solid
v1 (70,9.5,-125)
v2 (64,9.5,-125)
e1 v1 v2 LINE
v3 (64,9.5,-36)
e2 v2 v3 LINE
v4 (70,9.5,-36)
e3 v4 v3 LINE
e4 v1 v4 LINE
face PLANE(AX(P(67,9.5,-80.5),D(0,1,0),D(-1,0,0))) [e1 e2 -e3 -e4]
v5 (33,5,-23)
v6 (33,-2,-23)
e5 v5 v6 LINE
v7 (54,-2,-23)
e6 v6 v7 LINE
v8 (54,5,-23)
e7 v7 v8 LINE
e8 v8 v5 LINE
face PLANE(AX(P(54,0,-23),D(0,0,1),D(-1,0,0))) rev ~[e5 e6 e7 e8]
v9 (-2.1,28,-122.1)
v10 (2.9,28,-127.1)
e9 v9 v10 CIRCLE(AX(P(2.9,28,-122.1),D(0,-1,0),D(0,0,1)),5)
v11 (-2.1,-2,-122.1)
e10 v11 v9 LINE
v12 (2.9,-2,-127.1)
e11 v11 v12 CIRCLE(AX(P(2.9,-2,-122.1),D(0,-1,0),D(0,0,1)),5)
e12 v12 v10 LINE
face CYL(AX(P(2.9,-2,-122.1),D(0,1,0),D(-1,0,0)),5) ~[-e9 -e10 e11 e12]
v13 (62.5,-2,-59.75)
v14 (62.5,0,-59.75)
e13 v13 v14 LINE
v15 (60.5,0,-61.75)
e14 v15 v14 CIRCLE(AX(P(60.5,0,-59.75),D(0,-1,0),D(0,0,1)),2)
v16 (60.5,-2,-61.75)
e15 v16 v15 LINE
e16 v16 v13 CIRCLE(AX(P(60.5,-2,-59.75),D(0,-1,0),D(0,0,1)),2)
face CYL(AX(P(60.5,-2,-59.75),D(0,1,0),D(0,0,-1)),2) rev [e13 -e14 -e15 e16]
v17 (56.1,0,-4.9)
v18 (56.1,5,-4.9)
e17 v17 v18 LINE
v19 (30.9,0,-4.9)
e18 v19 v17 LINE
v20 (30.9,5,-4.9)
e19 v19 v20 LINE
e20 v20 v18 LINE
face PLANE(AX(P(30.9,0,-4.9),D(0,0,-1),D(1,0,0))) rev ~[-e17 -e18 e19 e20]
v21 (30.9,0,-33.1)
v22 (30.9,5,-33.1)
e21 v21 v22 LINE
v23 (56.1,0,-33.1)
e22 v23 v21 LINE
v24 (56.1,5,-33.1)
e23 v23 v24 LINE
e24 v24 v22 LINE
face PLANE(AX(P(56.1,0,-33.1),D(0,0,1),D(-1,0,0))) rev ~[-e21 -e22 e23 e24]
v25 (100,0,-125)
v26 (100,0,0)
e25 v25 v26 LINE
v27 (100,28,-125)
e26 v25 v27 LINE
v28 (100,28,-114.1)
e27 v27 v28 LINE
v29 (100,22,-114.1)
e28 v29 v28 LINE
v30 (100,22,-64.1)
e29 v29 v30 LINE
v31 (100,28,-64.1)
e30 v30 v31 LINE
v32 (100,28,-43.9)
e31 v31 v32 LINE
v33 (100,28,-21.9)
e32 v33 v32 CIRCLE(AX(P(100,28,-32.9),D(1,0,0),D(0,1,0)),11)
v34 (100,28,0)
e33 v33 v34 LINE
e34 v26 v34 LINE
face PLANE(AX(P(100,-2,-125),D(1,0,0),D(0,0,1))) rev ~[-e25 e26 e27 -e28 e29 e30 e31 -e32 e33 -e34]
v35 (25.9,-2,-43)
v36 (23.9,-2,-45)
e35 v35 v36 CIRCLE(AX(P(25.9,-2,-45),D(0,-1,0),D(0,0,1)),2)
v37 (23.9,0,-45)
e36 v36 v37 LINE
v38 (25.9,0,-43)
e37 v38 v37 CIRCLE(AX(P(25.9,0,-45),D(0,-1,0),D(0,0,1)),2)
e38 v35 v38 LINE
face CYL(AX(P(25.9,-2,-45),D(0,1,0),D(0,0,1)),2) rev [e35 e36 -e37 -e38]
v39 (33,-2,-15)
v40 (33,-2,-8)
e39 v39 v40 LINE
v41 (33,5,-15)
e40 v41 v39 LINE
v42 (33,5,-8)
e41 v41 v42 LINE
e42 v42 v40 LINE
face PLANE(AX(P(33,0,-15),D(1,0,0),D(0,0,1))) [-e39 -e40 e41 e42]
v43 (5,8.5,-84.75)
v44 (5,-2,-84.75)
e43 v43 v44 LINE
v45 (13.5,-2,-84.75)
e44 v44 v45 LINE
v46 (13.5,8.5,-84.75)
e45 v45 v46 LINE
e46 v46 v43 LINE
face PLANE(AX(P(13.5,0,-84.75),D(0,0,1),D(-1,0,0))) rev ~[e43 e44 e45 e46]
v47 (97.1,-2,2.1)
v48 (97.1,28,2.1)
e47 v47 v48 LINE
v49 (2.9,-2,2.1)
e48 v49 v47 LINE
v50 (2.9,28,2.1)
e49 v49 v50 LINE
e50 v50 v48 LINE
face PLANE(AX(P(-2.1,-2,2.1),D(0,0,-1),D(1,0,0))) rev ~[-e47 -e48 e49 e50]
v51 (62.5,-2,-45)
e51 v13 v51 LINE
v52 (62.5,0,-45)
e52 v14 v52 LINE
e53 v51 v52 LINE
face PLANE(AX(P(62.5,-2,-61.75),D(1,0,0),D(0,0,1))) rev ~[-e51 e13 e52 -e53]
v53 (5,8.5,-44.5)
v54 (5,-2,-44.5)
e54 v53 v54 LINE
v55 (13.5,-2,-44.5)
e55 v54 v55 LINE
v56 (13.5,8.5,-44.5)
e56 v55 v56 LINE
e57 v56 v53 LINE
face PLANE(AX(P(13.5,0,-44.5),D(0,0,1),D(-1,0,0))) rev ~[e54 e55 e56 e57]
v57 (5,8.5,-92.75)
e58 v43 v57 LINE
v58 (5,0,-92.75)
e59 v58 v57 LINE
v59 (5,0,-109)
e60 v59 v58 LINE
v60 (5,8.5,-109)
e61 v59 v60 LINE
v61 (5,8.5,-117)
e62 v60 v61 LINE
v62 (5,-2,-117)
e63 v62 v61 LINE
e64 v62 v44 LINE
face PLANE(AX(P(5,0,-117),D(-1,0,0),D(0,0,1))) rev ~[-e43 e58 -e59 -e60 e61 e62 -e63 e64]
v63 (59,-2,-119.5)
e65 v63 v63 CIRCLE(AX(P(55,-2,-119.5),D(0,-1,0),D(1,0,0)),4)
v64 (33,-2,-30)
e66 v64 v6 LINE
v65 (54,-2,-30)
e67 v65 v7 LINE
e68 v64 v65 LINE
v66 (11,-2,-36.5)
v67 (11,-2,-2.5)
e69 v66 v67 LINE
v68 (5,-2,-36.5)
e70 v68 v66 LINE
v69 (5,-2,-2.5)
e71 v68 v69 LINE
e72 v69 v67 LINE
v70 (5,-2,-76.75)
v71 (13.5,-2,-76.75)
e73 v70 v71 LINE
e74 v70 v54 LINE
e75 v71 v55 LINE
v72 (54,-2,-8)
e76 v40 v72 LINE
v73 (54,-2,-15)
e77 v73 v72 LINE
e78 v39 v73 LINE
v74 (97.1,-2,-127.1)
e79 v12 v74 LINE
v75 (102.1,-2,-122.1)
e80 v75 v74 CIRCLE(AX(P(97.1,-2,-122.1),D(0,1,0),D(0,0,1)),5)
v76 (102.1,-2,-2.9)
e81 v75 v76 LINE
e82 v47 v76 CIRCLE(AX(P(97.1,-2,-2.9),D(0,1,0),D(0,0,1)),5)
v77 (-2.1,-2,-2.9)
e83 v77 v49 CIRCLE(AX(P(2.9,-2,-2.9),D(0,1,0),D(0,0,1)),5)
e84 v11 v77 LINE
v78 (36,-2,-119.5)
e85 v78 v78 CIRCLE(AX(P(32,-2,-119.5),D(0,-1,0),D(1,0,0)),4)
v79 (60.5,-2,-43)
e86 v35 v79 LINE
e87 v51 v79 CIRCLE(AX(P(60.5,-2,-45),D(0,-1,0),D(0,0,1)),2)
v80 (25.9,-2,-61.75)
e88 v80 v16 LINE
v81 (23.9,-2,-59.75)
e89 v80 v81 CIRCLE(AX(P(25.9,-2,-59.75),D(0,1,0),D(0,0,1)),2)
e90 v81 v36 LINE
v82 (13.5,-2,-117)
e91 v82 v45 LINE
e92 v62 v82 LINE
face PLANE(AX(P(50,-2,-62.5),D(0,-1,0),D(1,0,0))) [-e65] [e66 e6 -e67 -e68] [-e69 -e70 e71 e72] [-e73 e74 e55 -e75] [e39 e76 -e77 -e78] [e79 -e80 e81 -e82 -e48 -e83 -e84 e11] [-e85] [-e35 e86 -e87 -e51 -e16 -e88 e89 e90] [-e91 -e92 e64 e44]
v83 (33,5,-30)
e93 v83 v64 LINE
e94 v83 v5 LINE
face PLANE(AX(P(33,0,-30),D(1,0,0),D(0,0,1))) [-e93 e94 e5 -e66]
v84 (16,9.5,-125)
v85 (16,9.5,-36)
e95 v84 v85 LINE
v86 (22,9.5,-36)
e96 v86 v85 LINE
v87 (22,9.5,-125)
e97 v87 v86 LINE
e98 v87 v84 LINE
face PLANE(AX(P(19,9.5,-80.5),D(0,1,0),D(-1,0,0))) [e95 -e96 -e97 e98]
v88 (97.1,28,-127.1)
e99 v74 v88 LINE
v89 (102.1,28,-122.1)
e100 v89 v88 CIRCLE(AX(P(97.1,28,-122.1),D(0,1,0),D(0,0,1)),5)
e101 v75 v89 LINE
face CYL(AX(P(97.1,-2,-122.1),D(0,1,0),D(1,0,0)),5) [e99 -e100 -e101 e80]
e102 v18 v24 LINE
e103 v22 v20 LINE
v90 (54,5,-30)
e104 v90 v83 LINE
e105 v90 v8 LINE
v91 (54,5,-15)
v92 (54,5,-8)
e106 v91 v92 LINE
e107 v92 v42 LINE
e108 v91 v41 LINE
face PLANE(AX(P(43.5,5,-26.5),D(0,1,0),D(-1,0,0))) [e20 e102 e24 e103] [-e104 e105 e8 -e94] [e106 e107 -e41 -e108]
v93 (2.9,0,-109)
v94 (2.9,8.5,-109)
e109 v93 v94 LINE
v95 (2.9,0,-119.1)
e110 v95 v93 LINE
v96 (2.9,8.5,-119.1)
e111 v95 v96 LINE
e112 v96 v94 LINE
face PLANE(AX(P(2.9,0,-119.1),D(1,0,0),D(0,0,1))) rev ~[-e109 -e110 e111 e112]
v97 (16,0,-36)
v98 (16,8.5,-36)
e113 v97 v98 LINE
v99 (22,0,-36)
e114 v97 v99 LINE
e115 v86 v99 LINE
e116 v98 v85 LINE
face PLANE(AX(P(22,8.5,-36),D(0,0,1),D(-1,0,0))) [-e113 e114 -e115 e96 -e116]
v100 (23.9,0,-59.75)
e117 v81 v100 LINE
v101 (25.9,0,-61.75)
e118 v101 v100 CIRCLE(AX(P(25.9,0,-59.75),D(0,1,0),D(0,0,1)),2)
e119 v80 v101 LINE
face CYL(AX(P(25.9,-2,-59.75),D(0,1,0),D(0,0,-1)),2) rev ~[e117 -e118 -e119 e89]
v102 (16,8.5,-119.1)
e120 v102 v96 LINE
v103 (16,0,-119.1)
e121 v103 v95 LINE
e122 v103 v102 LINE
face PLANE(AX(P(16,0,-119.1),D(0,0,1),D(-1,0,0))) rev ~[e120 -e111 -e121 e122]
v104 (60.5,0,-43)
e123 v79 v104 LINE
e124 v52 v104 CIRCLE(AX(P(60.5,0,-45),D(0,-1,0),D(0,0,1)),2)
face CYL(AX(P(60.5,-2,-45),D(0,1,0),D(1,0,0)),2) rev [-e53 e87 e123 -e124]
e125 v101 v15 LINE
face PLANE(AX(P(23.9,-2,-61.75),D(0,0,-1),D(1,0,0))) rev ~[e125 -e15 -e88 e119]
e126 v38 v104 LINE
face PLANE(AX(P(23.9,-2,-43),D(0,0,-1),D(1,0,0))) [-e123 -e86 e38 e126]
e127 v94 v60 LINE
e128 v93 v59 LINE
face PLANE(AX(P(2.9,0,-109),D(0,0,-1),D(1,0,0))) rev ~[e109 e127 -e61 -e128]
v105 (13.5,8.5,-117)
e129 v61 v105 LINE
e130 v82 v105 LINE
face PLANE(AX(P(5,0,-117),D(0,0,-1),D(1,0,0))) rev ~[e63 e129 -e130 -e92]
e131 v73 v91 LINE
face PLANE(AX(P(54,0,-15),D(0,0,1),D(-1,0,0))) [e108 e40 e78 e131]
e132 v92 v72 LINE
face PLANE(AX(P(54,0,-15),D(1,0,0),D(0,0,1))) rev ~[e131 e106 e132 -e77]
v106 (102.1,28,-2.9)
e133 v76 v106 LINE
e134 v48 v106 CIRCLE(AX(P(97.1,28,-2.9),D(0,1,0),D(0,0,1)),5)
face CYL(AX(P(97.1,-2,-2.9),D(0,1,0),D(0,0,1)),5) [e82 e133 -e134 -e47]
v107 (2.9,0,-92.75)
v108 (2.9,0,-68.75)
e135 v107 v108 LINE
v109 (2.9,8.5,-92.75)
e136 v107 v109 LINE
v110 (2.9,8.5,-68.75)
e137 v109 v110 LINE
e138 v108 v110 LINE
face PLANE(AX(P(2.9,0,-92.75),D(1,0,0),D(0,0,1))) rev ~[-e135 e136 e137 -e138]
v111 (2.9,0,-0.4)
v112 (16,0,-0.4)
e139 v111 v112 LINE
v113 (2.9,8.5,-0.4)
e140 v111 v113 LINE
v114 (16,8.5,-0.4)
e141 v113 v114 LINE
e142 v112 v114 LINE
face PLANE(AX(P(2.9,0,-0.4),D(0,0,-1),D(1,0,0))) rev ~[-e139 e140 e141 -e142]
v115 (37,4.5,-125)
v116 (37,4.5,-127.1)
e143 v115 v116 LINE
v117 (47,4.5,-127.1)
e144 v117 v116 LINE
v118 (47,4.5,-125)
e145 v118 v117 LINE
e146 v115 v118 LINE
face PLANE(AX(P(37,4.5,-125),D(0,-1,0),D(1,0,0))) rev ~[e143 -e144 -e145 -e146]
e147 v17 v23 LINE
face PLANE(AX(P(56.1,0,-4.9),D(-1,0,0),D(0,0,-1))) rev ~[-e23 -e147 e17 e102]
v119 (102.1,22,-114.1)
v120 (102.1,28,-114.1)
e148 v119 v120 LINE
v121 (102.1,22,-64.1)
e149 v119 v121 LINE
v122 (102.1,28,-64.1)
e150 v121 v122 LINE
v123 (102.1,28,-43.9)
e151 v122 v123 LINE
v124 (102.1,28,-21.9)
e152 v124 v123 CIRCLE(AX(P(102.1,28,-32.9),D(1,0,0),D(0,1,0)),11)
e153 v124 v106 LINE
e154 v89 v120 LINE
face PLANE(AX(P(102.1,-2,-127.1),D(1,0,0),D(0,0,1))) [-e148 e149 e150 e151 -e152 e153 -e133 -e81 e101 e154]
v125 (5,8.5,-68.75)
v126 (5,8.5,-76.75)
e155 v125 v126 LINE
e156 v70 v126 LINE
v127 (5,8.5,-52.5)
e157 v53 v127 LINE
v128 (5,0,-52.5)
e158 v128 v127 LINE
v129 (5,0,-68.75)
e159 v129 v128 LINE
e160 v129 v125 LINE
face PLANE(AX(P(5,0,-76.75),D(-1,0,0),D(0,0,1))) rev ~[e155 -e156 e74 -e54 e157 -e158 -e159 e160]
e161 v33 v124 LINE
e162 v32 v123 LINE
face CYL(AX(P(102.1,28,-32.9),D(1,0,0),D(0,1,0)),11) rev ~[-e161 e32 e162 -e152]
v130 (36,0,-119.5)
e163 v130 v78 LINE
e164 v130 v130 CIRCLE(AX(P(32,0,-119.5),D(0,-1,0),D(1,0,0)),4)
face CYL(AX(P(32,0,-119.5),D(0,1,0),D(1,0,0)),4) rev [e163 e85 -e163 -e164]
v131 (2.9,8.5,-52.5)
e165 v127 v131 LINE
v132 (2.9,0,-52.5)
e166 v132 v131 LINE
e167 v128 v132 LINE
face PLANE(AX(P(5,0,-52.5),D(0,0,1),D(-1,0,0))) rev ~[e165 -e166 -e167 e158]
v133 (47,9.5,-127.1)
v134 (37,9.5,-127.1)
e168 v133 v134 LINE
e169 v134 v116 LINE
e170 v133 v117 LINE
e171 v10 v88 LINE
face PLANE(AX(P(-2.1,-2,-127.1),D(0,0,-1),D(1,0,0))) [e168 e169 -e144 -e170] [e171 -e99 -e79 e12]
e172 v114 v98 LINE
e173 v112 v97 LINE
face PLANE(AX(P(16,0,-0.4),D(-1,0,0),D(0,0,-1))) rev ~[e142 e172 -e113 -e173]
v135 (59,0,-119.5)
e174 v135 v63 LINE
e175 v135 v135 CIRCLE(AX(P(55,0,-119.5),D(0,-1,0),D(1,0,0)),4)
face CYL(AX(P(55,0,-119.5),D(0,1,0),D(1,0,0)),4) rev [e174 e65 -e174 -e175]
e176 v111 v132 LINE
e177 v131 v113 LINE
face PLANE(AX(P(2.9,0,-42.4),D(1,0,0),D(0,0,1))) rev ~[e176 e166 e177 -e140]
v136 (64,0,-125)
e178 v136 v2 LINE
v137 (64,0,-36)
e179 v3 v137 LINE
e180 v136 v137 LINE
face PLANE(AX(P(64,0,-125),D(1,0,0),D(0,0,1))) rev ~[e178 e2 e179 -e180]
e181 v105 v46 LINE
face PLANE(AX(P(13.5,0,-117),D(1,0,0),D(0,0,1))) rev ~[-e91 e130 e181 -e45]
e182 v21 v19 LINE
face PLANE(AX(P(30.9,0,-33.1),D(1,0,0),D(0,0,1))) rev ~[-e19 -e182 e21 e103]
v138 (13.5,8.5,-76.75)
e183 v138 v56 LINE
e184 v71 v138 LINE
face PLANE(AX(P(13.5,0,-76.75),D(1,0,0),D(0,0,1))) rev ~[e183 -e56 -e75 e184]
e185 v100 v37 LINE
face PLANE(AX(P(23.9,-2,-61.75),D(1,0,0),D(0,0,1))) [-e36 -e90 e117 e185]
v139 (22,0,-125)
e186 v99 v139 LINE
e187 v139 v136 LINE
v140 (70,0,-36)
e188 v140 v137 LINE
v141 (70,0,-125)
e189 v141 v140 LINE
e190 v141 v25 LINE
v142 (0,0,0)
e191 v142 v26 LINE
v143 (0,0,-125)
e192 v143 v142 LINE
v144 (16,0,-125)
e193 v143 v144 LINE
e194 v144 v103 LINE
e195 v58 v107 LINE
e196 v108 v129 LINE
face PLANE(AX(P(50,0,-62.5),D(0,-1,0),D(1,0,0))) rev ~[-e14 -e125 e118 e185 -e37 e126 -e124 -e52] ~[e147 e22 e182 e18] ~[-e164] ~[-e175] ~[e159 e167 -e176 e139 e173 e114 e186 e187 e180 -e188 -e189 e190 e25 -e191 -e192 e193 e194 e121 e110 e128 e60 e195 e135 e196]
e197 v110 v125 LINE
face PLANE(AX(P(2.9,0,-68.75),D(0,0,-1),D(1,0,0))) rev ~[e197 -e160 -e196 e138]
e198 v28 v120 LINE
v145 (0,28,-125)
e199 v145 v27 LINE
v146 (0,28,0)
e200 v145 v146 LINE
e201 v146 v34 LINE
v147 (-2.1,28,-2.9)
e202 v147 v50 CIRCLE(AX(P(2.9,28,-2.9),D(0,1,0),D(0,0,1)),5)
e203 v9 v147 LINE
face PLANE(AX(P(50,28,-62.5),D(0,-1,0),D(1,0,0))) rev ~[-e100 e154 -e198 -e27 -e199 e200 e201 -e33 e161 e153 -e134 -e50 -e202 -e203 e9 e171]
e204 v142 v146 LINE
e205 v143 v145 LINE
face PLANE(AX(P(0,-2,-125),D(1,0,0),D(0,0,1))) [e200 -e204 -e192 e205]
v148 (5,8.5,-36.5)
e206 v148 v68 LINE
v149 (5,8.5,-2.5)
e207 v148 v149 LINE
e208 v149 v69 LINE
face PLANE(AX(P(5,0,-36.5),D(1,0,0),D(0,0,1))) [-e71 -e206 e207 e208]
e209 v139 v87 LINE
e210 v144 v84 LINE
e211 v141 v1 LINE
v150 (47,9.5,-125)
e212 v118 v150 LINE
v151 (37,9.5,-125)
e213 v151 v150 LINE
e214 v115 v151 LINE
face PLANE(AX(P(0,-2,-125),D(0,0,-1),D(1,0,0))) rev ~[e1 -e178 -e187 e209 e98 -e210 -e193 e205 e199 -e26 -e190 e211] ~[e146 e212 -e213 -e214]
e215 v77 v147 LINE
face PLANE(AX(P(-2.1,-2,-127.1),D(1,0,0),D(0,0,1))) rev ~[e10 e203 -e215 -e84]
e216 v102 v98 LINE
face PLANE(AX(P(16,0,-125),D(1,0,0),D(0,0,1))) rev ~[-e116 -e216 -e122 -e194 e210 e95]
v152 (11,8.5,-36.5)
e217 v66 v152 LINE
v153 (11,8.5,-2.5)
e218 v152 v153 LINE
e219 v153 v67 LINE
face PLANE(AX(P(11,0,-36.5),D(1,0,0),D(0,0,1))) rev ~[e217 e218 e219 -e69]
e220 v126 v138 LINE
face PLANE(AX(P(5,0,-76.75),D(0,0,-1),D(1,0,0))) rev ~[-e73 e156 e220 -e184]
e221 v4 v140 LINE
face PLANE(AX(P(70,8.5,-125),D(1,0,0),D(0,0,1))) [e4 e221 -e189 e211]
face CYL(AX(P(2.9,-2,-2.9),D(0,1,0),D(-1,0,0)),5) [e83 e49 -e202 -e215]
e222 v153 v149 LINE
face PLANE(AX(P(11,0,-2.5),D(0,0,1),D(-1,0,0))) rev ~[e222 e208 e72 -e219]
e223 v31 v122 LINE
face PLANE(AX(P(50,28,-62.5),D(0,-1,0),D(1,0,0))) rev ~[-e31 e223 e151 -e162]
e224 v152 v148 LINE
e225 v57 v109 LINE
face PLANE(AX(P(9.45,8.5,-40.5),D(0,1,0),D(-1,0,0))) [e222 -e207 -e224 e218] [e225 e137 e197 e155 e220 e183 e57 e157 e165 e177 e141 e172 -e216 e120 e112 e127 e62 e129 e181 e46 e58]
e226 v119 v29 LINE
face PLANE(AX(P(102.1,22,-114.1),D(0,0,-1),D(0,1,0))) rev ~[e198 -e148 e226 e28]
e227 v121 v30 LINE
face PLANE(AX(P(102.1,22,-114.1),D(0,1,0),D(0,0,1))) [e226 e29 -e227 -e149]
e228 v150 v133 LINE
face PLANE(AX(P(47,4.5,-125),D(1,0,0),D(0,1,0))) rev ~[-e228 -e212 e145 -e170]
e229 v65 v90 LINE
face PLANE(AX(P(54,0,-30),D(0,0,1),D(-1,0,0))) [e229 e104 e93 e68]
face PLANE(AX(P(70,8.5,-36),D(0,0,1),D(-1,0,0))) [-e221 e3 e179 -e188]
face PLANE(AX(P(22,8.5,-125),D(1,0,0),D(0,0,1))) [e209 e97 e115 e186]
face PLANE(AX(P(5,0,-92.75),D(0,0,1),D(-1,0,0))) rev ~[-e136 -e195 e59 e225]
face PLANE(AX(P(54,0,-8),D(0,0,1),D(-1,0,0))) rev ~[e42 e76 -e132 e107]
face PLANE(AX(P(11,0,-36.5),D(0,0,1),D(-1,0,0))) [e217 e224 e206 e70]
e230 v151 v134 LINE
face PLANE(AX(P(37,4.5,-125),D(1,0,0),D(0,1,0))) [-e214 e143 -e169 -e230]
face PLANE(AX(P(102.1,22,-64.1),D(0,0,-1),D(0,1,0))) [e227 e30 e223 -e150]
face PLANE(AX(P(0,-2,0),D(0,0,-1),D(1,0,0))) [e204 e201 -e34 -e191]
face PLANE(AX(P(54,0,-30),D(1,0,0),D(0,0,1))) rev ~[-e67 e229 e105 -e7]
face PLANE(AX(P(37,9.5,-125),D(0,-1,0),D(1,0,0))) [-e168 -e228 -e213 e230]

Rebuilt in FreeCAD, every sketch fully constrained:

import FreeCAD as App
import Part
import Sketcher
from FreeCAD import Vector


def edges_at(feature, points):
    """Names of the edges that pass closest to the given points."""
    edges = feature.Shape.Edges
    near = lambda p: min(range(len(edges)), key=lambda i: edges[i].distToShape(Part.Vertex(*p))[0])
    return sorted({f"Edge{near(p) + 1}" for p in points})


def add_polygon(sketch, points):
    """Adds a closed chain of lines whose ends are joined by coincident constraints."""
    first, n = sketch.GeometryCount, len(points)
    for a, b in zip(points, points[1:] + points[:1]):
        sketch.addGeometry(Part.LineSegment(App.Vector(*a, 0), App.Vector(*b, 0)), False)
    for i in range(n):
        sketch.addConstraint(Sketcher.Constraint("Coincident", first + i, 2, first + (i + 1) % n, 1))

doc = App.newDocument("Part")
params = doc.addObject("Spreadsheet::Sheet", "Params")
for row, (alias, value) in enumerate([
    ("sketch1_diameter", "8 mm"),
    ("sketch1_diameter2", "4 mm"),
    ("sketch1_diameter3", "5.5 mm"),
    ("sketch1_width", "100 mm"),
    ("sketch1_width2", "6 mm"),
    ("pad1_length", "2 mm"),
    ("sketch2_width", "6 mm"),
    ("sketch2_height", "89 mm"),
    ("pad2_length", "8.5 mm"),
    ("sketch3_height", "8 mm"),
    ("sketch3_height2", "24 mm"),
    ("sketch3_width", "13.1 mm"),
    ("sketch3_width2", "2.1 mm"),
    ("sketch3_width3", "8.5 mm"),
    ("pad3_length", "8.5 mm"),
    ("sketch4_width", "6 mm"),
    ("sketch4_height", "42 mm"),
    ("sketch4_height2", "34 mm"),
    ("sketch4_width2", "13.1 mm"),
    ("pad4_length", "8.5 mm"),
    ("sketch5_width", "21 mm"),
    ("sketch5_height", "7 mm"),
    ("sketch5_width2", "25.2 mm"),
    ("sketch5_height2", "28.2 mm"),
    ("pad5_length", "5 mm"),
    ("sketch6_width", "100 mm"),
    ("sketch6_height", "125 mm"),
    ("sketch6_width2", "104.2 mm"),
    ("sketch6_height2", "129.2 mm"),
    ("pad6_length", "30 mm"),
    ("sketch7_diameter", "22 mm"),
    ("sketch7_width", "12 mm"),
    ("sketch7_height", "50 mm"),
    ("pocket1_length", "5 mm"),
    ("sketch8_diameter", "7.5 mm"),
    ("pocket2_length", "1 mm"),
    ("sketch9_width", "6 mm"),
    ("sketch9_height", "89 mm"),
    ("pad7_length", "1 mm"),
    ("sketch10_width", "6 mm"),
    ("sketch10_height", "89 mm"),
    ("pad8_length", "1 mm"),
    ("sketch11_width", "10 mm"),
    ("sketch11_height", "5 mm"),
    ("pocket3_length", "5 mm"),
    ("fillet_radius", "5 mm"),
    ("sketch12_diameter", "4 mm"),
    ("sketch12_diameter2", "5.5 mm"),
    ("sketch12_width", "38.6 mm"),
    ("sketch12_height", "18.75 mm"),
    ("pocket4_length", "25 mm"),
    ("fillet2_radius", "2 mm"),
], start=1):
    params.set(f"A{row}", alias)
    params.set(f"B{row}", "=" + value)
    params.setAlias(f"B{row}", alias)

body = doc.addObject("PartDesign::Body", "Body")

# Sketch on XZ plane
sketch1 = doc.addObject("Sketcher::SketchObject", "Sketch")
body.addObject(sketch1)
sketch1.AttachmentSupport = (doc.XZ_Plane, [""])
sketch1.MapMode = "FlatFace"
add_polygon(sketch1, [(0, 0), (0, -125), (100, -125), (100, 0)])  # lines 0-3
add_polygon(sketch1, [(13.5, -117), (5, -117), (5, -84.8), (13.5, -84.8)])  # lines 4-7
sketch1.addGeometry(Part.Circle(Vector(32, -119.5, 0), Vector(0, 0, 1), 4), False)  # 8
sketch1.addGeometry(Part.Circle(Vector(55, -119.5, 0), Vector(0, 0, 1), 4), False)  # 9
add_polygon(sketch1, [(13.5, -76.8), (5, -76.8), (5, -44.5), (13.5, -44.5)])  # lines 10-13
sketch1.addGeometry(Part.Circle(Vector(27.5, -47, 0), Vector(0, 0, 1), 2), False)  # 14
add_polygon(sketch1, [(11, -36.5), (5, -36.5), (5, -2.5), (11, -2.5)])  # lines 15-18
sketch1.addGeometry(Part.Circle(Vector(34, -56, 0), Vector(0, 0, 1), 2.8), False)  # 19
sketch1.addGeometry(Part.Circle(Vector(52, -56, 0), Vector(0, 0, 1), 2.8), False)  # 20
sketch1.addGeometry(Part.Circle(Vector(58.5, -47, 0), Vector(0, 0, 1), 2), False)  # 21
add_polygon(sketch1, [(54, -30), (33, -30), (33, -23), (54, -23)])  # lines 22-25
add_polygon(sketch1, [(54, -15), (33, -15), (33, -8), (54, -8)])  # lines 26-29
sketch1.addConstraint([
    Sketcher.Constraint("Vertical", 0),
    Sketcher.Constraint("Horizontal", 1),
    Sketcher.Constraint("Vertical", 2),
    Sketcher.Constraint("Horizontal", 3),
    Sketcher.Constraint("Horizontal", 4),
    Sketcher.Constraint("Vertical", 5),
    Sketcher.Constraint("Horizontal", 6),
    Sketcher.Constraint("Vertical", 7),
    Sketcher.Constraint("Horizontal", 10),
    Sketcher.Constraint("Vertical", 11),
    Sketcher.Constraint("Horizontal", 12),
    Sketcher.Constraint("Vertical", 13),
    Sketcher.Constraint("Horizontal", 15),
    Sketcher.Constraint("Vertical", 16),
    Sketcher.Constraint("Horizontal", 17),
    Sketcher.Constraint("Vertical", 18),
    Sketcher.Constraint("Horizontal", 22),
    Sketcher.Constraint("Vertical", 23),
    Sketcher.Constraint("Horizontal", 24),
    Sketcher.Constraint("Vertical", 25),
    Sketcher.Constraint("Horizontal", 26),
    Sketcher.Constraint("Vertical", 27),
    Sketcher.Constraint("Horizontal", 28),
    Sketcher.Constraint("Vertical", 29),
    Sketcher.Constraint("Coincident", 3, 2, -1, 1),
    Sketcher.Constraint("Equal", 8, 9),
    Sketcher.Constraint("Equal", 19, 20),
    Sketcher.Constraint("Equal", 14, 21),
    Sketcher.Constraint("Horizontal", 8, 3, 9, 3),
    Sketcher.Constraint("Horizontal", 19, 3, 20, 3),
    Sketcher.Constraint("Horizontal", 14, 3, 21, 3),
    Sketcher.Constraint("Vertical", 5, 2, 10, 2),
    Sketcher.Constraint("Vertical", 7, 2, 12, 2),
    Sketcher.Constraint("Vertical", 11, 2, 15, 2),
    Sketcher.Constraint("Vertical", 23, 2, 26, 2),
    Sketcher.Constraint("Vertical", 25, 2, 28, 2),
    Sketcher.Constraint("Equal", 7, 11),
    Sketcher.Constraint("Equal", 25, 27),
    Sketcher.Constraint("Diameter", 8, 8.0),
    Sketcher.Constraint("Diameter", 14, 4.0),
    Sketcher.Constraint("Diameter", 19, 5.5),
    Sketcher.Constraint("DistanceX", 1, 1, 1, 2, 100.0),
    Sketcher.Constraint("DistanceX", 15, 2, 15, 1, 6.0),
    Sketcher.Constraint("DistanceX", 22, 2, 22, 1, 21.0),
    Sketcher.Constraint("DistanceY", 0, 2, 0, 1, 125.0),
    Sketcher.Constraint("DistanceY", 16, 1, 16, 2, 34.0),
    Sketcher.Constraint("DistanceY", 23, 1, 23, 2, 7.0),
    Sketcher.Constraint("DistanceX", 4, 2, 4, 1, 8.5),
    Sketcher.Constraint("DistanceX", -1, 1, 8, 3, 32.0),
    Sketcher.Constraint("DistanceX", -1, 1, 9, 3, 55.0),
    Sketcher.Constraint("DistanceY", 14, 3, -1, 1, 47.0),
    Sketcher.Constraint("DistanceX", -1, 1, 19, 3, 34.0),
    Sketcher.Constraint("DistanceY", 19, 3, -1, 1, 56.0),
    Sketcher.Constraint("DistanceX", -1, 1, 20, 3, 52.0),
    Sketcher.Constraint("DistanceX", -1, 1, 4, 2, 5.0),
    Sketcher.Constraint("DistanceY", 4, 2, -1, 1, 117.0),
    Sketcher.Constraint("DistanceX", -1, 1, 22, 2, 33.0),
    Sketcher.Constraint("DistanceY", 22, 2, -1, 1, 30.0),
    Sketcher.Constraint("DistanceY", 26, 2, -1, 1, 15.0),
    Sketcher.Constraint("DistanceX", 14, 3, 21, 3, 31.0),
    Sketcher.Constraint("DistanceX", 6, 2, 14, 3, 14.0),
    Sketcher.Constraint("DistanceY", 5, 2, 10, 2, 8.0),
    Sketcher.Constraint("DistanceY", 11, 2, 15, 2, 8.0),
    Sketcher.Constraint("DistanceY", 5, 1, 5, 2, 32.25),
    Sketcher.Constraint("DistanceY", 8, 3, -1, 1, 119.5),
])
sketch1.setExpression("Constraints[62]", "Params.sketch1_diameter")
sketch1.setExpression("Constraints[63]", "Params.sketch1_diameter2")
sketch1.setExpression("Constraints[64]", "Params.sketch1_diameter3")
sketch1.setExpression("Constraints[65]", "Params.sketch1_width")
sketch1.setExpression("Constraints[66]", "Params.sketch1_width2")
pad1 = doc.addObject("PartDesign::Pad", "Pad")
body.addObject(pad1)
pad1.Profile = sketch1
pad1.setExpression("Length", "Params.pad1_length")

# Sketch on XZ plane
sketch2 = doc.addObject("Sketcher::SketchObject", "Sketch001")
body.addObject(sketch2)
sketch2.AttachmentSupport = (doc.XZ_Plane, [""])
sketch2.MapMode = "FlatFace"
add_polygon(sketch2, [(22, -125), (16, -125), (16, -36), (22, -36)])  # lines 0-3
add_polygon(sketch2, [(70, -36), (70, -125), (64, -125), (64, -36)])  # lines 4-7
sketch2.addConstraint([
    Sketcher.Constraint("Horizontal", 0),
    Sketcher.Constraint("Vertical", 1),
    Sketcher.Constraint("Horizontal", 2),
    Sketcher.Constraint("Vertical", 3),
    Sketcher.Constraint("Vertical", 4),
    Sketcher.Constraint("Horizontal", 5),
    Sketcher.Constraint("Vertical", 6),
    Sketcher.Constraint("Horizontal", 7),
    Sketcher.Constraint("Horizontal", 3, 2, 4, 2),
    Sketcher.Constraint("Horizontal", 2, 2, 6, 2),
    Sketcher.Constraint("Equal", 2, 5),
    Sketcher.Constraint("DistanceX", 0, 2, 0, 1, 6.0),
    Sketcher.Constraint("DistanceY", 1, 1, 1, 2, 89.0),
    Sketcher.Constraint("DistanceX", -1, 1, 0, 2, 16.0),
    Sketcher.Constraint("DistanceY", 0, 2, -1, 1, 125.0),
    Sketcher.Constraint("DistanceX", -1, 1, 4, 2, 70.0),
])
sketch2.setExpression("Constraints[19]", "Params.sketch2_width")
sketch2.setExpression("Constraints[20]", "Params.sketch2_height")
pad2 = doc.addObject("PartDesign::Pad", "Pad001")
body.addObject(pad2)
pad2.Profile = sketch2
pad2.setExpression("Length", "Params.pad2_length")
pad2.Reversed = True

# Sketch on XZ plane
sketch3 = doc.addObject("Sketcher::SketchObject", "Sketch002")
body.addObject(sketch3)
sketch3.AttachmentSupport = (doc.XZ_Plane, [""])
sketch3.MapMode = "FlatFace"
add_polygon(sketch3, [(16, -119.1), (2.9, -119.1), (2.9, -109), (5, -109), (5, -117), (13.5, -117), (13.5, -84.8), (5, -84.8), (5, -92.8), (2.9, -92.8), (2.9, -68.8), (5, -68.8), (5, -76.8), (13.5, -76.8), (13.5, -44.5), (5, -44.5), (5, -52.5), (2.9, -52.5), (2.9, -42.4), (16, -42.4)])  # lines 0-19
sketch3.addConstraint([
    Sketcher.Constraint("Horizontal", 0),
    Sketcher.Constraint("Vertical", 1),
    Sketcher.Constraint("Horizontal", 2),
    Sketcher.Constraint("Vertical", 3),
    Sketcher.Constraint("Horizontal", 4),
    Sketcher.Constraint("Vertical", 5),
    Sketcher.Constraint("Horizontal", 6),
    Sketcher.Constraint("Vertical", 7),
    Sketcher.Constraint("Horizontal", 8),
    Sketcher.Constraint("Vertical", 9),
    Sketcher.Constraint("Horizontal", 10),
    Sketcher.Constraint("Vertical", 11),
    Sketcher.Constraint("Horizontal", 12),
    Sketcher.Constraint("Vertical", 13),
    Sketcher.Constraint("Horizontal", 14),
    Sketcher.Constraint("Vertical", 15),
    Sketcher.Constraint("Horizontal", 16),
    Sketcher.Constraint("Vertical", 17),
    Sketcher.Constraint("Horizontal", 18),
    Sketcher.Constraint("Vertical", 19),
    Sketcher.Constraint("Vertical", 3, 2, 6, 2),
    Sketcher.Constraint("Vertical", 1, 2, 8, 2),
    Sketcher.Constraint("Vertical", 7, 2, 10, 2),
    Sketcher.Constraint("Vertical", 5, 2, 12, 2),
    Sketcher.Constraint("Vertical", 11, 2, 14, 2),
    Sketcher.Constraint("Vertical", 9, 2, 16, 2),
    Sketcher.Constraint("Equal", 3, 7),
    Sketcher.Constraint("Equal", 7, 11),
    Sketcher.Constraint("Equal", 5, 13),
    Sketcher.Constraint("Equal", 11, 15),
    Sketcher.Constraint("Equal", 1, 17),
    Sketcher.Constraint("DistanceY", 3, 2, 3, 1, 8.0),
    Sketcher.Constraint("DistanceY", 9, 1, 9, 2, 24.0),
    Sketcher.Constraint("DistanceX", 0, 2, 0, 1, 13.1),
    Sketcher.Constraint("DistanceX", 2, 1, 2, 2, 2.1),
    Sketcher.Constraint("DistanceX", 4, 1, 4, 2, 8.5),
    Sketcher.Constraint("DistanceY", 1, 1, 1, 2, 10.1),
    Sketcher.Constraint("DistanceY", 19, 2, 19, 1, 76.7),
    Sketcher.Constraint("DistanceY", 1, 2, -1, 1, 109.0),
    Sketcher.Constraint("DistanceX", -1, 1, 2, 2, 5.0),
])
sketch3.setExpression("Constraints[51]", "Params.sketch3_height")
sketch3.setExpression("Constraints[52]", "Params.sketch3_height2")
sketch3.setExpression("Constraints[53]", "Params.sketch3_width")
sketch3.setExpression("Constraints[54]", "Params.sketch3_width2")
sketch3.setExpression("Constraints[55]", "Params.sketch3_width3")
pad3 = doc.addObject("PartDesign::Pad", "Pad002")
body.addObject(pad3)
pad3.Profile = sketch3
pad3.setExpression("Length", "Params.pad3_length")
pad3.Reversed = True

# Sketch on XZ plane
sketch4 = doc.addObject("Sketcher::SketchObject", "Sketch003")
body.addObject(sketch4)
sketch4.AttachmentSupport = (doc.XZ_Plane, [""])
sketch4.MapMode = "FlatFace"
add_polygon(sketch4, [(16, -42), (3, -42), (3, 0), (16, 0)])  # lines 0-3
add_polygon(sketch4, [(5, -36), (11, -36), (11, -2), (5, -2)])  # lines 4-7
sketch4.addConstraint([
    Sketcher.Constraint("Horizontal", 0),
    Sketcher.Constraint("Vertical", 1),
    Sketcher.Constraint("Horizontal", 2),
    Sketcher.Constraint("Vertical", 3),
    Sketcher.Constraint("Horizontal", 4),
    Sketcher.Constraint("Vertical", 5),
    Sketcher.Constraint("Horizontal", 6),
    Sketcher.Constraint("Vertical", 7),
    Sketcher.Constraint("DistanceX", 4, 1, 4, 2, 6.0),
    Sketcher.Constraint("DistanceY", 1, 1, 1, 2, 42.0),
    Sketcher.Constraint("DistanceY", 5, 1, 5, 2, 34.0),
    Sketcher.Constraint("DistanceX", 0, 2, 0, 1, 13.1),
    Sketcher.Constraint("DistanceX", -1, 1, 2, 2, 16.0),
    Sketcher.Constraint("DistanceX", -1, 1, 4, 2, 11.0),
    Sketcher.Constraint("DistanceY", 0, 2, -1, 1, 42.4),
    Sketcher.Constraint("DistanceY", 4, 2, -1, 1, 36.5),
])
sketch4.setExpression("Constraints[16]", "Params.sketch4_width")
sketch4.setExpression("Constraints[17]", "Params.sketch4_height")
sketch4.setExpression("Constraints[18]", "Params.sketch4_height2")
sketch4.setExpression("Constraints[19]", "Params.sketch4_width2")
pad4 = doc.addObject("PartDesign::Pad", "Pad003")
body.addObject(pad4)
pad4.Profile = sketch4
pad4.setExpression("Length", "Params.pad4_length")
pad4.Reversed = True

# Sketch on XZ plane
sketch5 = doc.addObject("Sketcher::SketchObject", "Sketch004")
body.addObject(sketch5)
sketch5.AttachmentSupport = (doc.XZ_Plane, [""])
sketch5.MapMode = "FlatFace"
add_polygon(sketch5, [(56, -33), (31, -33), (31, -5), (56, -5)])  # lines 0-3
add_polygon(sketch5, [(33, -30), (54, -30), (54, -23), (33, -23)])  # lines 4-7
add_polygon(sketch5, [(33, -15), (54, -15), (54, -8), (33, -8)])  # lines 8-11
sketch5.addConstraint([
    Sketcher.Constraint("Horizontal", 0),
    Sketcher.Constraint("Vertical", 1),
    Sketcher.Constraint("Horizontal", 2),
    Sketcher.Constraint("Vertical", 3),
    Sketcher.Constraint("Horizontal", 4),
    Sketcher.Constraint("Vertical", 5),
    Sketcher.Constraint("Horizontal", 6),
    Sketcher.Constraint("Vertical", 7),
    Sketcher.Constraint("Horizontal", 8),
    Sketcher.Constraint("Vertical", 9),
    Sketcher.Constraint("Horizontal", 10),
    Sketcher.Constraint("Vertical", 11),
    Sketcher.Constraint("Vertical", 5, 2, 8, 2),
    Sketcher.Constraint("Vertical", 7, 2, 10, 2),
    Sketcher.Constraint("Equal", 7, 9),
    Sketcher.Constraint("DistanceX", 4, 1, 4, 2, 21.0),
    Sketcher.Constraint("DistanceY", 5, 1, 5, 2, 7.0),
    Sketcher.Constraint("DistanceX", 0, 2, 0, 1, 25.2),
    Sketcher.Constraint("DistanceY", 1, 1, 1, 2, 28.2),
    Sketcher.Constraint("DistanceX", -1, 1, 4, 2, 54.0),
    Sketcher.Constraint("DistanceY", 4, 2, -1, 1, 30.0),
    Sketcher.Constraint("DistanceY", 8, 2, -1, 1, 15.0),
    Sketcher.Constraint("DistanceX", -1, 1, 0, 2, 30.9),
    Sketcher.Constraint("DistanceY", 0, 2, -1, 1, 33.1),
])
sketch5.setExpression("Constraints[27]", "Params.sketch5_width")
sketch5.setExpression("Constraints[28]", "Params.sketch5_height")
sketch5.setExpression("Constraints[29]", "Params.sketch5_width2")
sketch5.setExpression("Constraints[30]", "Params.sketch5_height2")
pad5 = doc.addObject("PartDesign::Pad", "Pad004")
body.addObject(pad5)
pad5.Profile = sketch5
pad5.setExpression("Length", "Params.pad5_length")
pad5.Reversed = True

# Sketch on XZ plane
sketch6 = doc.addObject("Sketcher::SketchObject", "Sketch005")
body.addObject(sketch6)
sketch6.AttachmentSupport = (doc.XZ_Plane, [""])
sketch6.MapMode = "FlatFace"
sketch6.AttachmentOffset = App.Placement(Vector(0, 0, 2), App.Rotation())
add_polygon(sketch6, [(-2, 2), (-2, -127), (102, -127), (102, 2)])  # lines 0-3
add_polygon(sketch6, [(100, -125), (0, -125), (0, 0), (100, 0)])  # lines 4-7
sketch6.addConstraint([
    Sketcher.Constraint("Vertical", 0),
    Sketcher.Constraint("Horizontal", 1),
    Sketcher.Constraint("Vertical", 2),
    Sketcher.Constraint("Horizontal", 3),
    Sketcher.Constraint("Horizontal", 4),
    Sketcher.Constraint("Vertical", 5),
    Sketcher.Constraint("Horizontal", 6),
    Sketcher.Constraint("Vertical", 7),
    Sketcher.Constraint("Coincident", 5, 2, -1, 1),
    Sketcher.Constraint("DistanceX", 4, 2, 4, 1, 100.0),
    Sketcher.Constraint("DistanceY", 5, 1, 5, 2, 125.0),
    Sketcher.Constraint("DistanceX", 1, 1, 1, 2, 104.2),
    Sketcher.Constraint("DistanceY", 0, 2, 0, 1, 129.2),
    Sketcher.Constraint("DistanceX", 0, 2, -1, 1, 2.1),
    Sketcher.Constraint("DistanceY", 0, 2, -1, 1, 127.1),
])
sketch6.setExpression("Constraints[17]", "Params.sketch6_width")
sketch6.setExpression("Constraints[18]", "Params.sketch6_height")
sketch6.setExpression("Constraints[19]", "Params.sketch6_width2")
sketch6.setExpression("Constraints[20]", "Params.sketch6_height2")
pad6 = doc.addObject("PartDesign::Pad", "Pad005")
body.addObject(pad6)
pad6.Profile = sketch6
pad6.setExpression("Length", "Params.pad6_length")
pad6.Reversed = True

# Sketch on YZ plane
sketch7 = doc.addObject("Sketcher::SketchObject", "Sketch006")
body.addObject(sketch7)
sketch7.AttachmentSupport = (doc.YZ_Plane, [""])
sketch7.MapMode = "FlatFace"
sketch7.AttachmentOffset = App.Placement(Vector(0, 0, 102.1), App.Rotation())
sketch7.addGeometry(Part.Circle(Vector(28, -33, 0), Vector(0, 0, 1), 11), False)  # 0
add_polygon(sketch7, [(22, -64), (22, -114), (34, -114), (34, -64)])  # lines 1-4
sketch7.addConstraint([
    Sketcher.Constraint("Vertical", 1),
    Sketcher.Constraint("Horizontal", 2),
    Sketcher.Constraint("Vertical", 3),
    Sketcher.Constraint("Horizontal", 4),
    Sketcher.Constraint("Diameter", 0, 22.0),
    Sketcher.Constraint("DistanceX", 2, 1, 2, 2, 12.0),
    Sketcher.Constraint("DistanceY", 1, 2, 1, 1, 50.0),
    Sketcher.Constraint("DistanceX", -1, 1, 0, 3, 28.0),
    Sketcher.Constraint("DistanceX", -1, 1, 1, 2, 22.0),
    Sketcher.Constraint("DistanceY", 0, 3, -1, 1, 32.9),
    Sketcher.Constraint("DistanceY", 1, 2, -1, 1, 114.1),
])
sketch7.setExpression("Constraints[8]", "Params.sketch7_diameter")
sketch7.setExpression("Constraints[9]", "Params.sketch7_width")
sketch7.setExpression("Constraints[10]", "Params.sketch7_height")
pocket1 = doc.addObject("PartDesign::Pocket", "Pocket")
body.addObject(pocket1)
pocket1.Profile = sketch7
pocket1.setExpression("Length", "Params.pocket1_length")

# Sketch on XZ plane
sketch8 = doc.addObject("Sketcher::SketchObject", "Sketch007")
body.addObject(sketch8)
sketch8.AttachmentSupport = (doc.XZ_Plane, [""])
sketch8.MapMode = "FlatFace"
sketch8.addGeometry([
    Part.Circle(Vector(34, -56, 0), Vector(0, 0, 1), 3.8),
    Part.Circle(Vector(52, -56, 0), Vector(0, 0, 1), 3.8),
], False)
sketch8.addConstraint([
    Sketcher.Constraint("Equal", 0, 1),
    Sketcher.Constraint("Horizontal", 0, 3, 1, 3),
    Sketcher.Constraint("Diameter", 0, 7.5),
    Sketcher.Constraint("DistanceX", -1, 1, 0, 3, 34.0),
    Sketcher.Constraint("DistanceY", 0, 3, -1, 1, 56.0),
    Sketcher.Constraint("DistanceX", -1, 1, 1, 3, 52.0),
])
sketch8.setExpression("Constraints[2]", "Params.sketch8_diameter")
pocket2 = doc.addObject("PartDesign::Pocket", "Pocket001")
body.addObject(pocket2)
pocket2.Profile = sketch8
pocket2.setExpression("Length", "Params.pocket2_length")
pocket2.Reversed = True

# Sketch on XZ plane
sketch9 = doc.addObject("Sketcher::SketchObject", "Sketch008")
body.addObject(sketch9)
sketch9.AttachmentSupport = (doc.XZ_Plane, [""])
sketch9.MapMode = "FlatFace"
sketch9.AttachmentOffset = App.Placement(Vector(0, 0, -8.5), App.Rotation())
add_polygon(sketch9, [(22, -36), (22, -125), (16, -125), (16, -36)])  # lines 0-3
sketch9.addConstraint([
    Sketcher.Constraint("Vertical", 0),
    Sketcher.Constraint("Horizontal", 1),
    Sketcher.Constraint("Vertical", 2),
    Sketcher.Constraint("Horizontal", 3),
    Sketcher.Constraint("DistanceX", 1, 2, 1, 1, 6.0),
    Sketcher.Constraint("DistanceY", 0, 2, 0, 1, 89.0),
    Sketcher.Constraint("DistanceX", -1, 1, 0, 2, 22.0),
    Sketcher.Constraint("DistanceY", 0, 2, -1, 1, 125.0),
])
sketch9.setExpression("Constraints[8]", "Params.sketch9_width")
sketch9.setExpression("Constraints[9]", "Params.sketch9_height")
pad7 = doc.addObject("PartDesign::Pad", "Pad006")
body.addObject(pad7)
pad7.Profile = sketch9
pad7.setExpression("Length", "Params.pad7_length")
pad7.Reversed = True

# Sketch on XZ plane
sketch10 = doc.addObject("Sketcher::SketchObject", "Sketch009")
body.addObject(sketch10)
sketch10.AttachmentSupport = (doc.XZ_Plane, [""])
sketch10.MapMode = "FlatFace"
sketch10.AttachmentOffset = App.Placement(Vector(0, 0, -8.5), App.Rotation())
add_polygon(sketch10, [(70, -36), (70, -125), (64, -125), (64, -36)])  # lines 0-3
sketch10.addConstraint([
    Sketcher.Constraint("Vertical", 0),
    Sketcher.Constraint("Horizontal", 1),
    Sketcher.Constraint("Vertical", 2),
    Sketcher.Constraint("Horizontal", 3),
    Sketcher.Constraint("DistanceX", 1, 2, 1, 1, 6.0),
    Sketcher.Constraint("DistanceY", 0, 2, 0, 1, 89.0),
    Sketcher.Constraint("DistanceX", -1, 1, 0, 2, 70.0),
    Sketcher.Constraint("DistanceY", 0, 2, -1, 1, 125.0),
])
sketch10.setExpression("Constraints[8]", "Params.sketch10_width")
sketch10.setExpression("Constraints[9]", "Params.sketch10_height")
pad8 = doc.addObject("PartDesign::Pad", "Pad007")
body.addObject(pad8)
pad8.Profile = sketch10
pad8.setExpression("Length", "Params.pad8_length")
pad8.Reversed = True

# Sketch on XY plane
sketch11 = doc.addObject("Sketcher::SketchObject", "Sketch010")
body.addObject(sketch11)
sketch11.AttachmentSupport = (doc.XY_Plane, [""])
sketch11.MapMode = "FlatFace"
sketch11.AttachmentOffset = App.Placement(Vector(0, 0, -125), App.Rotation())
add_polygon(sketch11, [(37, 10), (37, 4), (47, 4), (47, 10)])  # lines 0-3
sketch11.addConstraint([
    Sketcher.Constraint("Vertical", 0),
    Sketcher.Constraint("Horizontal", 1),
    Sketcher.Constraint("Vertical", 2),
    Sketcher.Constraint("Horizontal", 3),
    Sketcher.Constraint("DistanceX", 1, 1, 1, 2, 10.0),
    Sketcher.Constraint("DistanceY", 0, 2, 0, 1, 5.0),
    Sketcher.Constraint("DistanceX", -1, 1, 0, 2, 37.0),
    Sketcher.Constraint("DistanceY", -1, 1, 0, 2, 4.5),
])
sketch11.setExpression("Constraints[8]", "Params.sketch11_width")
sketch11.setExpression("Constraints[9]", "Params.sketch11_height")
pocket3 = doc.addObject("PartDesign::Pocket", "Pocket002")
body.addObject(pocket3)
pocket3.Profile = sketch11
pocket3.setExpression("Length", "Params.pocket3_length")
doc.recompute()

fillet = doc.addObject("PartDesign::Fillet", "Fillet")
body.addObject(fillet)
fillet.Base = (pocket3, edges_at(pocket3, [
    (102.1, 13, 2.1),
    (-2.1, 13, 2.1),
    (-2.1, 13, -127.1),
    (102.1, 13, -127.1),
]))
fillet.setExpression("Radius", "Params.fillet_radius")

# Sketch on XZ plane
sketch12 = doc.addObject("Sketcher::SketchObject", "Sketch011")
body.addObject(sketch12)
sketch12.AttachmentSupport = (doc.XZ_Plane, [""])
sketch12.MapMode = "FlatFace"
sketch12.AttachmentOffset = App.Placement(Vector(0, 0, 2), App.Rotation())
add_polygon(sketch12, [(23.9, -43), (23.9, -61.8), (62.5, -61.8), (62.5, -43)])  # lines 0-3
sketch12.addGeometry(Part.Circle(Vector(34, -56, 0), Vector(0, 0, 1), 2.8), False)  # 4
sketch12.addGeometry(Part.Circle(Vector(52, -56, 0), Vector(0, 0, 1), 2.8), False)  # 5
sketch12.addGeometry(Part.Circle(Vector(27.5, -47, 0), Vector(0, 0, 1), 2), False)  # 6
sketch12.addGeometry(Part.Circle(Vector(58.5, -47, 0), Vector(0, 0, 1), 2), False)  # 7
sketch12.addConstraint([
    Sketcher.Constraint("Vertical", 0),
    Sketcher.Constraint("Horizontal", 1),
    Sketcher.Constraint("Vertical", 2),
    Sketcher.Constraint("Horizontal", 3),
    Sketcher.Constraint("Equal", 4, 5),
    Sketcher.Constraint("Equal", 6, 7),
    Sketcher.Constraint("Horizontal", 4, 3, 5, 3),
    Sketcher.Constraint("Horizontal", 6, 3, 7, 3),
    Sketcher.Constraint("Diameter", 6, 4.0),
    Sketcher.Constraint("Diameter", 4, 5.5),
    Sketcher.Constraint("DistanceX", 1, 1, 1, 2, 38.6),
    Sketcher.Constraint("DistanceX", -1, 1, 4, 3, 34.0),
    Sketcher.Constraint("DistanceY", 4, 3, -1, 1, 56.0),
    Sketcher.Constraint("DistanceX", -1, 1, 5, 3, 52.0),
    Sketcher.Constraint("DistanceY", 6, 3, -1, 1, 47.0),
    Sketcher.Constraint("DistanceY", 2, 2, -1, 1, 43.0),
    Sketcher.Constraint("DistanceX", 6, 3, 7, 3, 31.0),
    Sketcher.Constraint("DistanceX", 7, 3, 1, 2, 4.0),
    Sketcher.Constraint("DistanceY", 0, 2, 0, 1, 18.75),
    Sketcher.Constraint("DistanceX", -1, 1, 6, 3, 27.5),
])
sketch12.setExpression("Constraints[12]", "Params.sketch12_diameter")
sketch12.setExpression("Constraints[13]", "Params.sketch12_diameter2")
sketch12.setExpression("Constraints[14]", "Params.sketch12_width")
sketch12.setExpression("Constraints[22]", "Params.sketch12_height")
pocket4 = doc.addObject("PartDesign::Pocket", "Pocket003")
body.addObject(pocket4)
pocket4.Profile = sketch12
pocket4.setExpression("Length", "Params.pocket4_length")
doc.recompute()

fillet2 = doc.addObject("PartDesign::Fillet", "Fillet001")
body.addObject(fillet2)
fillet2.Base = (pocket4, edges_at(pocket4, [
    (23.9, -1, -43),
    (62.5, -1, -43),
    (23.9, -1, -61.75),
    (62.5, -1, -61.75),
]))
fillet2.setExpression("Radius", "Params.fillet2_radius")

doc.recompute()
